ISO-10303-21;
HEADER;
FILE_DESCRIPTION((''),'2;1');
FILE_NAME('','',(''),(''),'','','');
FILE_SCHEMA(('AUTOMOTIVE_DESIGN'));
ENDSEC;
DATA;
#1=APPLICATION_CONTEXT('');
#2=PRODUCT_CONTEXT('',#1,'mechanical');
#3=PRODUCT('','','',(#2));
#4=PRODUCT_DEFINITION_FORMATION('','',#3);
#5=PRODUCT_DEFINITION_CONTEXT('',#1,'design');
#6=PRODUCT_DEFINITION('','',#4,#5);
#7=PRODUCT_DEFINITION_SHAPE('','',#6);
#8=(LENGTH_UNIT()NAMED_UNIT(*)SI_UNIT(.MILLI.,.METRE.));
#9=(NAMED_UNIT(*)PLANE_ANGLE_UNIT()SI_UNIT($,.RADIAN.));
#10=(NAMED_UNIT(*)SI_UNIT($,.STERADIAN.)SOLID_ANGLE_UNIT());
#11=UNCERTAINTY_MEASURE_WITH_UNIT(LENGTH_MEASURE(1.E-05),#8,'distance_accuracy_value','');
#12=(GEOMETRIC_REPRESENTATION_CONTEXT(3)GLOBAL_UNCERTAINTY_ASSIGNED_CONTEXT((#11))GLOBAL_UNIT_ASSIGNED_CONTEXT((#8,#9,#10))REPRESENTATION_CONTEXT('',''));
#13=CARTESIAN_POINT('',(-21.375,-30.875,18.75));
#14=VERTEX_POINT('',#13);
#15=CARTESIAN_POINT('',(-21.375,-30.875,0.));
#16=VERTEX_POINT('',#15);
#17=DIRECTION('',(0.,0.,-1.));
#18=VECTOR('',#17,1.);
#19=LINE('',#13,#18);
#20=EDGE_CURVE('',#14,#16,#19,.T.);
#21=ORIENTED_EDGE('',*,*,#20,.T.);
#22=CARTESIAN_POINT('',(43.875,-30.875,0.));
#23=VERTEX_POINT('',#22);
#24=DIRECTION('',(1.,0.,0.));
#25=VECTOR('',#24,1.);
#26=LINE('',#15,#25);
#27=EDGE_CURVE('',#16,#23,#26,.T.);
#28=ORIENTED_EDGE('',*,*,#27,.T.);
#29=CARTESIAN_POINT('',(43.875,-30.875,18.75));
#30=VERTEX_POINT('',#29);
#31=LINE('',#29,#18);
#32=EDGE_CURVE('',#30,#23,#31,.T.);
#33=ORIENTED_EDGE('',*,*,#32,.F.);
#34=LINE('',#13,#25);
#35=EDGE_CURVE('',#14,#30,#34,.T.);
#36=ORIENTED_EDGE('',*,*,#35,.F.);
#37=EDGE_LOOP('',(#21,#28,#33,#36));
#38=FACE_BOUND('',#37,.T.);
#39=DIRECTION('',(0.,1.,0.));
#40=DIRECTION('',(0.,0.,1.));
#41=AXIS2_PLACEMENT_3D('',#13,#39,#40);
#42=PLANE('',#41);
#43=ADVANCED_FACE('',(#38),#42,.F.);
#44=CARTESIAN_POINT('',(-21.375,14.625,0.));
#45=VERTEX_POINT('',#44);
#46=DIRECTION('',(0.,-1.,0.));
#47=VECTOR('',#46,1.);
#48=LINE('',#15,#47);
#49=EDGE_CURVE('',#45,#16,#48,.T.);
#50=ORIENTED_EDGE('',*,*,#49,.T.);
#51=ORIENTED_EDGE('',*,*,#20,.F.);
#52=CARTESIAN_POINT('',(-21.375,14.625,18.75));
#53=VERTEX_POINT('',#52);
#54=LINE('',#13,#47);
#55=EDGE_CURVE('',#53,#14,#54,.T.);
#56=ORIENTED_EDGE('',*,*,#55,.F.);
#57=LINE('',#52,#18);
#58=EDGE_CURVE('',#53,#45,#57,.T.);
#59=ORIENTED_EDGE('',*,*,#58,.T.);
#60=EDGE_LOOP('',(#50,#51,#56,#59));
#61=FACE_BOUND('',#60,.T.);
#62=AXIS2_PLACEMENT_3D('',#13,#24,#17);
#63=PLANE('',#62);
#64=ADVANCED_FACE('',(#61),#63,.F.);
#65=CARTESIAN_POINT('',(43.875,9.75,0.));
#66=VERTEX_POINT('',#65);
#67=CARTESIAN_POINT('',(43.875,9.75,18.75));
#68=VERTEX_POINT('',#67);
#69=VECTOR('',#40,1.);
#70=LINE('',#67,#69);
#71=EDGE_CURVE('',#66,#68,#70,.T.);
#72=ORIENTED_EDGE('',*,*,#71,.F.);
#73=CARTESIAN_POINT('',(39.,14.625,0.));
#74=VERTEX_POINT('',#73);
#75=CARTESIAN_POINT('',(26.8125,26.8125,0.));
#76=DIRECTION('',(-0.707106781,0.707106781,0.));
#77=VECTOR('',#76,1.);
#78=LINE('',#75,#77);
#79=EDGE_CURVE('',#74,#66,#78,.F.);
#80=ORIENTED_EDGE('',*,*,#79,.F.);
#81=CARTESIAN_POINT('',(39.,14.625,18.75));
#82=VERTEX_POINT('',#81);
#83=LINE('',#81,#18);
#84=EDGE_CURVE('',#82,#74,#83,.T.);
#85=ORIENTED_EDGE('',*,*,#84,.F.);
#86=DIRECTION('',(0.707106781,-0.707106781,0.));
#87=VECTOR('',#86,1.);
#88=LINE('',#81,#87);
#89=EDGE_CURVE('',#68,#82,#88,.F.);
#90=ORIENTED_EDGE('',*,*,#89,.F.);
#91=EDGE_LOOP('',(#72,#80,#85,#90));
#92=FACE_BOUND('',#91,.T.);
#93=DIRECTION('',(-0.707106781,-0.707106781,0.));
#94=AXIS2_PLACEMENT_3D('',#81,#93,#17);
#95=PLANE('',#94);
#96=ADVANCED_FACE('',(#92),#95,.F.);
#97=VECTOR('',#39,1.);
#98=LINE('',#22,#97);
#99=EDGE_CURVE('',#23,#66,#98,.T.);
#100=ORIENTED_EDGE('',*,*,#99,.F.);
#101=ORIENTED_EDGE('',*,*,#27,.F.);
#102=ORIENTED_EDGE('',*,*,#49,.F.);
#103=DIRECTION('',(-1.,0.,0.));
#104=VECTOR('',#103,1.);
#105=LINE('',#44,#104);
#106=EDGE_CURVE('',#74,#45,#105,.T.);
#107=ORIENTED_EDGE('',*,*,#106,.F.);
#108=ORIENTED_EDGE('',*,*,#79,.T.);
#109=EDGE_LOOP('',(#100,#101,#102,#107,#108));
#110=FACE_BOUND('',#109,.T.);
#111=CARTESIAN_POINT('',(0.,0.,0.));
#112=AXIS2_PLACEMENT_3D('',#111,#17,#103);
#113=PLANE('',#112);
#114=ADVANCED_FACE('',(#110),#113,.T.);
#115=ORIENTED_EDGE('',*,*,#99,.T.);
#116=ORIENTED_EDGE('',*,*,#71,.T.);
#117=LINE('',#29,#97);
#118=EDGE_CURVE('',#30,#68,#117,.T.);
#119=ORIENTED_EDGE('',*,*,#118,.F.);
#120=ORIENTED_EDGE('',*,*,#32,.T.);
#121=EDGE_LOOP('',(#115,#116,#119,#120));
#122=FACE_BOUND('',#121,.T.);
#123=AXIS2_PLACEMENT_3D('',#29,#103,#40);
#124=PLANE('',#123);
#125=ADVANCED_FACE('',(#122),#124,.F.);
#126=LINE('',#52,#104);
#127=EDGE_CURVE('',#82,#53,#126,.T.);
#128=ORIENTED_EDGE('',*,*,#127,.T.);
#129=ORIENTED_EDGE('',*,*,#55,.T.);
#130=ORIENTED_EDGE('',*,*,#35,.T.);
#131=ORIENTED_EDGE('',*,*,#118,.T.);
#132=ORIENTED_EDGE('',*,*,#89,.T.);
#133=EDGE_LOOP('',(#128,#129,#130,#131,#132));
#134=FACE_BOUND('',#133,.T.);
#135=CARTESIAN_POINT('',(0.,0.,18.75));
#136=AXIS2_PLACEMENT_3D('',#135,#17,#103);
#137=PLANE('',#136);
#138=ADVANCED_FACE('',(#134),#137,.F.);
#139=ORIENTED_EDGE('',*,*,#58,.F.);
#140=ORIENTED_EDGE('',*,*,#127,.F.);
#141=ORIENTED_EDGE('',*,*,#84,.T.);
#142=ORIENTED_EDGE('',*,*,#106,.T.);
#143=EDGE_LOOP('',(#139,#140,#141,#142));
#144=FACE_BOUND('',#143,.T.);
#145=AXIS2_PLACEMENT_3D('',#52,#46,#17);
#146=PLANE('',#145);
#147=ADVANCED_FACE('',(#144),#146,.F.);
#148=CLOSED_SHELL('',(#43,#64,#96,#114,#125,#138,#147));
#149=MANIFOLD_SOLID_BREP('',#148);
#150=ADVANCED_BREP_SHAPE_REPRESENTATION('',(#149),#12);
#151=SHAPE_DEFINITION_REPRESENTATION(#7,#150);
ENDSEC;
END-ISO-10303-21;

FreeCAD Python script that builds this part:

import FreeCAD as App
import Part
import Sketcher


def edges_at(feature, points):
    """Names of the edges that pass closest to the given points."""
    edges = feature.Shape.Edges
    near = lambda p: min(range(len(edges)), key=lambda i: edges[i].distToShape(Part.Vertex(*p))[0])
    return sorted({f"Edge{near(p) + 1}" for p in points})

doc = App.newDocument("Part")
body = doc.addObject("PartDesign::Body", "Body")

# Sketch on XY plane
sketch1 = body.newObject("Sketcher::SketchObject", "Sketch")
sketch1.AttachmentSupport = (doc.getObject("XY_Plane"), [""])
sketch1.MapMode = "FlatFace"
sketch1.addGeometry([
    Part.LineSegment(App.Vector(-21, 15, 0), App.Vector(-21, -31, 0)),
    Part.LineSegment(App.Vector(-21, -31, 0), App.Vector(44, -31, 0)),
    Part.LineSegment(App.Vector(44, -31, 0), App.Vector(44, 15, 0)),
    Part.LineSegment(App.Vector(44, 15, 0), App.Vector(-21, 15, 0)),
], False)
sketch1.addConstraint([
    Sketcher.Constraint("Coincident", 0, 2, 1, 1),
    Sketcher.Constraint("Coincident", 1, 2, 2, 1),
    Sketcher.Constraint("Coincident", 2, 2, 3, 1),
    Sketcher.Constraint("Coincident", 3, 2, 0, 1),
    Sketcher.Constraint("Vertical", 0),
    Sketcher.Constraint("Horizontal", 1),
    Sketcher.Constraint("Vertical", 2),
    Sketcher.Constraint("Horizontal", 3),
    Sketcher.Constraint("DistanceY", 0, 2, 0, 1, 45.5),
    Sketcher.Constraint("DistanceX", 1, 1, 1, 2, 65.25),
    Sketcher.Constraint("DistanceX", 0, 2, -1, 1, 21.375),
    Sketcher.Constraint("DistanceY", 0, 2, -1, 1, 30.875),
])
pad1 = body.newObject("PartDesign::Pad", "Pad")
pad1.Profile = sketch1
pad1.Length = 18.75
doc.recompute()

chamfer = body.newObject("PartDesign::Chamfer", "Chamfer")
chamfer.Base = (pad1, edges_at(pad1, [(43.875, 14.625, 9.375)]))
chamfer.Size = 4.875

doc.recompute()
